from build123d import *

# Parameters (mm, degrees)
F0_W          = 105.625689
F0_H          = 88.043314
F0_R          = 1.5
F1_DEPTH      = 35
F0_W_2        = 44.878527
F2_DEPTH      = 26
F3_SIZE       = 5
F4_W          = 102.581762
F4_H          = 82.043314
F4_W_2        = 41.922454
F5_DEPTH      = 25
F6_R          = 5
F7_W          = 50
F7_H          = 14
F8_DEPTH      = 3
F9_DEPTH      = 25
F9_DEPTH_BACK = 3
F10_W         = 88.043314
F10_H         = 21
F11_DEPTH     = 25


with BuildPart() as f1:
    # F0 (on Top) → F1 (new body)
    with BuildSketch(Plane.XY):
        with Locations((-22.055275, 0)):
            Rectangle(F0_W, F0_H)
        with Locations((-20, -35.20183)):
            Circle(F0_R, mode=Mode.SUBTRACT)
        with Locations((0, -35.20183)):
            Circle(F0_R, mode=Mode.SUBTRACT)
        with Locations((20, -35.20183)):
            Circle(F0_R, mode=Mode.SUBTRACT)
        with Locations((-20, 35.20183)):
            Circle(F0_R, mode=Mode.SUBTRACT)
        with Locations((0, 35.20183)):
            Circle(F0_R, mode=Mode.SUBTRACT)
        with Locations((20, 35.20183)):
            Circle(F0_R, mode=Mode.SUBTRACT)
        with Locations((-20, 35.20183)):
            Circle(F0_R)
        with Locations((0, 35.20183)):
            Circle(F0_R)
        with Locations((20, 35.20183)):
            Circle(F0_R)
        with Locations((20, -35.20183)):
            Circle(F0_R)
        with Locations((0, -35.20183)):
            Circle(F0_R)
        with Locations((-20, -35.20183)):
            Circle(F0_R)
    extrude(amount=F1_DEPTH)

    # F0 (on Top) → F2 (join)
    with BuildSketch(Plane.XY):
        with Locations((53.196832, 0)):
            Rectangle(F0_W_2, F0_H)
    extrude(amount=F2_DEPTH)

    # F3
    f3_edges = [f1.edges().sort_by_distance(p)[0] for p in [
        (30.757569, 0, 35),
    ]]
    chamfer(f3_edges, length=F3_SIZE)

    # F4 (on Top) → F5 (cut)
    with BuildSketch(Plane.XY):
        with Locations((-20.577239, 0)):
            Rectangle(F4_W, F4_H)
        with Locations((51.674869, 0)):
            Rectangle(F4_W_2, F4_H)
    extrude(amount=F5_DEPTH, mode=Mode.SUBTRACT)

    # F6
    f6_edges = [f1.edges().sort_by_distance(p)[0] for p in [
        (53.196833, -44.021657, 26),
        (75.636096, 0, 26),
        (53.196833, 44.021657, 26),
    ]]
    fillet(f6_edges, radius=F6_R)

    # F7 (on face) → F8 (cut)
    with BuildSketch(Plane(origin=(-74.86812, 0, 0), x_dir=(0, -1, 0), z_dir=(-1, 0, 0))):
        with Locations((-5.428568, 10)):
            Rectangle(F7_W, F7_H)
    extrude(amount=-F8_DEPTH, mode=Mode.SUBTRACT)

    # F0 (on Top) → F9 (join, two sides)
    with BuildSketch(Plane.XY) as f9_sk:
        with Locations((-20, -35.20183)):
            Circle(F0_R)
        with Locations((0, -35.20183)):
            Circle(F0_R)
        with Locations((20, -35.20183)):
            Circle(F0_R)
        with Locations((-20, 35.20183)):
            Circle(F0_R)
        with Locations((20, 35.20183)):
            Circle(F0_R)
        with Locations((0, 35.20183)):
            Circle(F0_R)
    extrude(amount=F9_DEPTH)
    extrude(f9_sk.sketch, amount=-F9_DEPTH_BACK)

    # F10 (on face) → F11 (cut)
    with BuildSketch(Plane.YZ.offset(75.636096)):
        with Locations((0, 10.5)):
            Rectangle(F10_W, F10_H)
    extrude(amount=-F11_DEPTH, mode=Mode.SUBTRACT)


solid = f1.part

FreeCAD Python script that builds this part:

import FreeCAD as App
import Part
import Sketcher
Q = App.Units.Quantity


def edges_at(feature, points):
    """Names of the edges that pass closest to the given points."""
    edges = feature.Shape.Edges
    near = lambda p: min(range(len(edges)), key=lambda i: edges[i].distToShape(Part.Vertex(*p))[0])
    return sorted({f"Edge{near(p) + 1}" for p in points})


def add_polygon(sketch, points):
    """Adds a closed chain of lines whose ends are joined by coincident constraints."""
    first, n = sketch.GeometryCount, len(points)
    for a, b in zip(points, points[1:] + points[:1]):
        sketch.addGeometry(Part.LineSegment(App.Vector(*a, 0), App.Vector(*b, 0)), False)
    for i in range(n):
        sketch.addConstraint(Sketcher.Constraint("Coincident", first + i, 2, first + (i + 1) % n, 1))

doc = App.newDocument("Part")
body = doc.addObject("PartDesign::Body", "Body")

# Sketch on XY plane
sketch1 = body.newObject("Sketcher::SketchObject", "Sketch")
sketch1.AttachmentSupport = (doc.getObject("XY_Plane"), [""])
sketch1.MapMode = "FlatFace"
add_polygon(sketch1, [(-75, 44), (-75, -44), (31, -44), (31, 44)])  # lines 0-3
sketch1.addConstraint([
    Sketcher.Constraint("Vertical", 0),
    Sketcher.Constraint("Horizontal", 1),
    Sketcher.Constraint("Vertical", 2),
    Sketcher.Constraint("Horizontal", 3),
    Sketcher.Constraint("DistanceX", 1, 1, 1, 2, Q("105.625689 mm")),
    Sketcher.Constraint("DistanceY", 0, 2, 0, 1, Q("88.043314 mm")),
    Sketcher.Constraint("DistanceX", 0, 2, -1, 1, Q("74.86812 mm")),
    Sketcher.Constraint("DistanceY", 0, 2, -1, 1, Q("44.021657 mm")),
])
pad1 = body.newObject("PartDesign::Pad", "Pad")
pad1.Profile = sketch1
pad1.Length = 35

# Sketch on XY plane
sketch2 = body.newObject("Sketcher::SketchObject", "Sketch001")
sketch2.AttachmentSupport = (doc.getObject("XY_Plane"), [""])
sketch2.MapMode = "FlatFace"
add_polygon(sketch2, [(31, 44), (31, -44), (76, -44), (76, 44)])  # lines 0-3
sketch2.addConstraint([
    Sketcher.Constraint("Vertical", 0),
    Sketcher.Constraint("Horizontal", 1),
    Sketcher.Constraint("Vertical", 2),
    Sketcher.Constraint("Horizontal", 3),
    Sketcher.Constraint("DistanceX", 1, 1, 1, 2, Q("44.878527 mm")),
    Sketcher.Constraint("DistanceY", 0, 2, 0, 1, Q("88.043314 mm")),
    Sketcher.Constraint("DistanceX", -1, 1, 0, 2, Q("30.757569 mm")),
    Sketcher.Constraint("DistanceY", 0, 2, -1, 1, Q("44.021657 mm")),
])
pad2 = body.newObject("PartDesign::Pad", "Pad001")
pad2.Profile = sketch2
pad2.Length = 26
doc.recompute()

chamfer = body.newObject("PartDesign::Chamfer", "Chamfer")
chamfer.Base = (pad2, edges_at(pad2, [(30.758, 0, 35)]))
chamfer.Size = 5

# Sketch on XY plane
sketch3 = body.newObject("Sketcher::SketchObject", "Sketch002")
sketch3.AttachmentSupport = (doc.getObject("XY_Plane"), [""])
sketch3.MapMode = "FlatFace"
add_polygon(sketch3, [(-72, 41), (-72, -41), (73, -41), (73, 41)])  # lines 0-3
sketch3.addConstraint([
    Sketcher.Constraint("Vertical", 0),
    Sketcher.Constraint("Horizontal", 1),
    Sketcher.Constraint("Vertical", 2),
    Sketcher.Constraint("Horizontal", 3),
    Sketcher.Constraint("DistanceX", 1, 1, 1, 2, Q("144.504216 mm")),
    Sketcher.Constraint("DistanceY", 0, 2, 0, 1, Q("82.043314 mm")),
    Sketcher.Constraint("DistanceX", 0, 2, -1, 1, Q("71.86812 mm")),
    Sketcher.Constraint("DistanceY", 0, 2, -1, 1, Q("41.021657 mm")),
])
pocket1 = body.newObject("PartDesign::Pocket", "Pocket")
pocket1.Profile = sketch3
pocket1.Length = 25
pocket1.Reversed = True
doc.recompute()

fillet = body.newObject("PartDesign::Fillet", "Fillet")
fillet.Base = (pocket1, edges_at(pocket1, [(53.197, -44.022, 26), (75.636, 0, 26), (53.197, 44.022, 26)]))
fillet.Radius = 5

# Sketch on YZ plane
sketch4 = body.newObject("Sketcher::SketchObject", "Sketch003")
sketch4.AttachmentSupport = (doc.getObject("YZ_Plane"), [""])
sketch4.MapMode = "FlatFace"
sketch4.AttachmentOffset = App.Placement(App.Vector(0, 0, -74.86812), App.Rotation())
add_polygon(sketch4, [(30, 17), (30, 3), (-20, 3), (-20, 17)])  # lines 0-3
sketch4.addConstraint([
    Sketcher.Constraint("Vertical", 0),
    Sketcher.Constraint("Horizontal", 1),
    Sketcher.Constraint("Vertical", 2),
    Sketcher.Constraint("Horizontal", 3),
    Sketcher.Constraint("DistanceX", 1, 2, 1, 1, Q("50 mm")),
    Sketcher.Constraint("DistanceY", 0, 2, 0, 1, Q("14 mm")),
    Sketcher.Constraint("DistanceY", -1, 1, 0, 2, Q("3 mm")),
    Sketcher.Constraint("DistanceX", -1, 1, 0, 2, Q("30.428568 mm")),
])
pocket2 = body.newObject("PartDesign::Pocket", "Pocket001")
pocket2.Profile = sketch4
pocket2.Length = 3
pocket2.Reversed = True

# Sketch on XY plane
sketch5 = body.newObject("Sketcher::SketchObject", "Sketch004")
sketch5.AttachmentSupport = (doc.getObject("XY_Plane"), [""])
sketch5.MapMode = "FlatFace"
sketch5.addGeometry([
    Part.Circle(App.Vector(-20, -35.2, 0), App.Vector(0, 0, 1), 1.5),  # 0
    Part.Circle(App.Vector(0, -35.2, 0), App.Vector(0, 0, 1), 1.5),  # 1
    Part.Circle(App.Vector(20, -35.2, 0), App.Vector(0, 0, 1), 1.5),  # 2
    Part.Circle(App.Vector(-20, 35.2, 0), App.Vector(0, 0, 1), 1.5),  # 3
    Part.Circle(App.Vector(20, 35.2, 0), App.Vector(0, 0, 1), 1.5),  # 4
    Part.Circle(App.Vector(0, 35.2, 0), App.Vector(0, 0, 1), 1.5),  # 5
], False)
sketch5.addConstraint([
    Sketcher.Constraint("Equal", 0, 1),
    Sketcher.Constraint("Equal", 1, 2),
    Sketcher.Constraint("Equal", 2, 3),
    Sketcher.Constraint("Equal", 3, 4),
    Sketcher.Constraint("Equal", 4, 5),
    Sketcher.Constraint("Symmetric", 2, 3, 3, 3, -1, 1),
    Sketcher.Constraint("Symmetric", 0, 3, 4, 3, -1, 1),
    Sketcher.Constraint("Symmetric", 1, 3, 5, 3, -1, 1),
    Sketcher.Constraint("Symmetric", 0, 3, 2, 3, -2),
    Sketcher.Constraint("PointOnObject", 1, 3, -2),
    Sketcher.Constraint("Horizontal", 0, 3, 1, 3),
    Sketcher.Constraint("Diameter", 0, Q("3 mm")),
    Sketcher.Constraint("DistanceX", 0, 3, -1, 1, Q("20 mm")),
    Sketcher.Constraint("DistanceY", 0, 3, -1, 1, Q("35.20183 mm")),
])
pad3 = body.newObject("PartDesign::Pad", "Pad002")
pad3.Profile = sketch5
pad3.Type = "TwoLengths"
pad3.Length = 25
pad3.Length2 = 3

# Sketch on YZ plane
sketch6 = body.newObject("Sketcher::SketchObject", "Sketch005")
sketch6.AttachmentSupport = (doc.getObject("YZ_Plane"), [""])
sketch6.MapMode = "FlatFace"
sketch6.AttachmentOffset = App.Placement(App.Vector(0, 0, 75.636096), App.Rotation())
add_polygon(sketch6, [(-44, 21), (-44, 0), (44, 0), (44, 21)])  # lines 0-3
sketch6.addConstraint([
    Sketcher.Constraint("Vertical", 0),
    Sketcher.Constraint("Horizontal", 1),
    Sketcher.Constraint("Vertical", 2),
    Sketcher.Constraint("Horizontal", 3),
    Sketcher.Constraint("Symmetric", 0, 2, 1, 2, -1, 1),
    Sketcher.Constraint("DistanceY", 0, 2, 0, 1, Q("21 mm")),
    Sketcher.Constraint("DistanceX", 1, 1, 1, 2, Q("88.043314 mm")),
])
pocket3 = body.newObject("PartDesign::Pocket", "Pocket002")
pocket3.Profile = sketch6
pocket3.Length = 25

doc.recompute()
